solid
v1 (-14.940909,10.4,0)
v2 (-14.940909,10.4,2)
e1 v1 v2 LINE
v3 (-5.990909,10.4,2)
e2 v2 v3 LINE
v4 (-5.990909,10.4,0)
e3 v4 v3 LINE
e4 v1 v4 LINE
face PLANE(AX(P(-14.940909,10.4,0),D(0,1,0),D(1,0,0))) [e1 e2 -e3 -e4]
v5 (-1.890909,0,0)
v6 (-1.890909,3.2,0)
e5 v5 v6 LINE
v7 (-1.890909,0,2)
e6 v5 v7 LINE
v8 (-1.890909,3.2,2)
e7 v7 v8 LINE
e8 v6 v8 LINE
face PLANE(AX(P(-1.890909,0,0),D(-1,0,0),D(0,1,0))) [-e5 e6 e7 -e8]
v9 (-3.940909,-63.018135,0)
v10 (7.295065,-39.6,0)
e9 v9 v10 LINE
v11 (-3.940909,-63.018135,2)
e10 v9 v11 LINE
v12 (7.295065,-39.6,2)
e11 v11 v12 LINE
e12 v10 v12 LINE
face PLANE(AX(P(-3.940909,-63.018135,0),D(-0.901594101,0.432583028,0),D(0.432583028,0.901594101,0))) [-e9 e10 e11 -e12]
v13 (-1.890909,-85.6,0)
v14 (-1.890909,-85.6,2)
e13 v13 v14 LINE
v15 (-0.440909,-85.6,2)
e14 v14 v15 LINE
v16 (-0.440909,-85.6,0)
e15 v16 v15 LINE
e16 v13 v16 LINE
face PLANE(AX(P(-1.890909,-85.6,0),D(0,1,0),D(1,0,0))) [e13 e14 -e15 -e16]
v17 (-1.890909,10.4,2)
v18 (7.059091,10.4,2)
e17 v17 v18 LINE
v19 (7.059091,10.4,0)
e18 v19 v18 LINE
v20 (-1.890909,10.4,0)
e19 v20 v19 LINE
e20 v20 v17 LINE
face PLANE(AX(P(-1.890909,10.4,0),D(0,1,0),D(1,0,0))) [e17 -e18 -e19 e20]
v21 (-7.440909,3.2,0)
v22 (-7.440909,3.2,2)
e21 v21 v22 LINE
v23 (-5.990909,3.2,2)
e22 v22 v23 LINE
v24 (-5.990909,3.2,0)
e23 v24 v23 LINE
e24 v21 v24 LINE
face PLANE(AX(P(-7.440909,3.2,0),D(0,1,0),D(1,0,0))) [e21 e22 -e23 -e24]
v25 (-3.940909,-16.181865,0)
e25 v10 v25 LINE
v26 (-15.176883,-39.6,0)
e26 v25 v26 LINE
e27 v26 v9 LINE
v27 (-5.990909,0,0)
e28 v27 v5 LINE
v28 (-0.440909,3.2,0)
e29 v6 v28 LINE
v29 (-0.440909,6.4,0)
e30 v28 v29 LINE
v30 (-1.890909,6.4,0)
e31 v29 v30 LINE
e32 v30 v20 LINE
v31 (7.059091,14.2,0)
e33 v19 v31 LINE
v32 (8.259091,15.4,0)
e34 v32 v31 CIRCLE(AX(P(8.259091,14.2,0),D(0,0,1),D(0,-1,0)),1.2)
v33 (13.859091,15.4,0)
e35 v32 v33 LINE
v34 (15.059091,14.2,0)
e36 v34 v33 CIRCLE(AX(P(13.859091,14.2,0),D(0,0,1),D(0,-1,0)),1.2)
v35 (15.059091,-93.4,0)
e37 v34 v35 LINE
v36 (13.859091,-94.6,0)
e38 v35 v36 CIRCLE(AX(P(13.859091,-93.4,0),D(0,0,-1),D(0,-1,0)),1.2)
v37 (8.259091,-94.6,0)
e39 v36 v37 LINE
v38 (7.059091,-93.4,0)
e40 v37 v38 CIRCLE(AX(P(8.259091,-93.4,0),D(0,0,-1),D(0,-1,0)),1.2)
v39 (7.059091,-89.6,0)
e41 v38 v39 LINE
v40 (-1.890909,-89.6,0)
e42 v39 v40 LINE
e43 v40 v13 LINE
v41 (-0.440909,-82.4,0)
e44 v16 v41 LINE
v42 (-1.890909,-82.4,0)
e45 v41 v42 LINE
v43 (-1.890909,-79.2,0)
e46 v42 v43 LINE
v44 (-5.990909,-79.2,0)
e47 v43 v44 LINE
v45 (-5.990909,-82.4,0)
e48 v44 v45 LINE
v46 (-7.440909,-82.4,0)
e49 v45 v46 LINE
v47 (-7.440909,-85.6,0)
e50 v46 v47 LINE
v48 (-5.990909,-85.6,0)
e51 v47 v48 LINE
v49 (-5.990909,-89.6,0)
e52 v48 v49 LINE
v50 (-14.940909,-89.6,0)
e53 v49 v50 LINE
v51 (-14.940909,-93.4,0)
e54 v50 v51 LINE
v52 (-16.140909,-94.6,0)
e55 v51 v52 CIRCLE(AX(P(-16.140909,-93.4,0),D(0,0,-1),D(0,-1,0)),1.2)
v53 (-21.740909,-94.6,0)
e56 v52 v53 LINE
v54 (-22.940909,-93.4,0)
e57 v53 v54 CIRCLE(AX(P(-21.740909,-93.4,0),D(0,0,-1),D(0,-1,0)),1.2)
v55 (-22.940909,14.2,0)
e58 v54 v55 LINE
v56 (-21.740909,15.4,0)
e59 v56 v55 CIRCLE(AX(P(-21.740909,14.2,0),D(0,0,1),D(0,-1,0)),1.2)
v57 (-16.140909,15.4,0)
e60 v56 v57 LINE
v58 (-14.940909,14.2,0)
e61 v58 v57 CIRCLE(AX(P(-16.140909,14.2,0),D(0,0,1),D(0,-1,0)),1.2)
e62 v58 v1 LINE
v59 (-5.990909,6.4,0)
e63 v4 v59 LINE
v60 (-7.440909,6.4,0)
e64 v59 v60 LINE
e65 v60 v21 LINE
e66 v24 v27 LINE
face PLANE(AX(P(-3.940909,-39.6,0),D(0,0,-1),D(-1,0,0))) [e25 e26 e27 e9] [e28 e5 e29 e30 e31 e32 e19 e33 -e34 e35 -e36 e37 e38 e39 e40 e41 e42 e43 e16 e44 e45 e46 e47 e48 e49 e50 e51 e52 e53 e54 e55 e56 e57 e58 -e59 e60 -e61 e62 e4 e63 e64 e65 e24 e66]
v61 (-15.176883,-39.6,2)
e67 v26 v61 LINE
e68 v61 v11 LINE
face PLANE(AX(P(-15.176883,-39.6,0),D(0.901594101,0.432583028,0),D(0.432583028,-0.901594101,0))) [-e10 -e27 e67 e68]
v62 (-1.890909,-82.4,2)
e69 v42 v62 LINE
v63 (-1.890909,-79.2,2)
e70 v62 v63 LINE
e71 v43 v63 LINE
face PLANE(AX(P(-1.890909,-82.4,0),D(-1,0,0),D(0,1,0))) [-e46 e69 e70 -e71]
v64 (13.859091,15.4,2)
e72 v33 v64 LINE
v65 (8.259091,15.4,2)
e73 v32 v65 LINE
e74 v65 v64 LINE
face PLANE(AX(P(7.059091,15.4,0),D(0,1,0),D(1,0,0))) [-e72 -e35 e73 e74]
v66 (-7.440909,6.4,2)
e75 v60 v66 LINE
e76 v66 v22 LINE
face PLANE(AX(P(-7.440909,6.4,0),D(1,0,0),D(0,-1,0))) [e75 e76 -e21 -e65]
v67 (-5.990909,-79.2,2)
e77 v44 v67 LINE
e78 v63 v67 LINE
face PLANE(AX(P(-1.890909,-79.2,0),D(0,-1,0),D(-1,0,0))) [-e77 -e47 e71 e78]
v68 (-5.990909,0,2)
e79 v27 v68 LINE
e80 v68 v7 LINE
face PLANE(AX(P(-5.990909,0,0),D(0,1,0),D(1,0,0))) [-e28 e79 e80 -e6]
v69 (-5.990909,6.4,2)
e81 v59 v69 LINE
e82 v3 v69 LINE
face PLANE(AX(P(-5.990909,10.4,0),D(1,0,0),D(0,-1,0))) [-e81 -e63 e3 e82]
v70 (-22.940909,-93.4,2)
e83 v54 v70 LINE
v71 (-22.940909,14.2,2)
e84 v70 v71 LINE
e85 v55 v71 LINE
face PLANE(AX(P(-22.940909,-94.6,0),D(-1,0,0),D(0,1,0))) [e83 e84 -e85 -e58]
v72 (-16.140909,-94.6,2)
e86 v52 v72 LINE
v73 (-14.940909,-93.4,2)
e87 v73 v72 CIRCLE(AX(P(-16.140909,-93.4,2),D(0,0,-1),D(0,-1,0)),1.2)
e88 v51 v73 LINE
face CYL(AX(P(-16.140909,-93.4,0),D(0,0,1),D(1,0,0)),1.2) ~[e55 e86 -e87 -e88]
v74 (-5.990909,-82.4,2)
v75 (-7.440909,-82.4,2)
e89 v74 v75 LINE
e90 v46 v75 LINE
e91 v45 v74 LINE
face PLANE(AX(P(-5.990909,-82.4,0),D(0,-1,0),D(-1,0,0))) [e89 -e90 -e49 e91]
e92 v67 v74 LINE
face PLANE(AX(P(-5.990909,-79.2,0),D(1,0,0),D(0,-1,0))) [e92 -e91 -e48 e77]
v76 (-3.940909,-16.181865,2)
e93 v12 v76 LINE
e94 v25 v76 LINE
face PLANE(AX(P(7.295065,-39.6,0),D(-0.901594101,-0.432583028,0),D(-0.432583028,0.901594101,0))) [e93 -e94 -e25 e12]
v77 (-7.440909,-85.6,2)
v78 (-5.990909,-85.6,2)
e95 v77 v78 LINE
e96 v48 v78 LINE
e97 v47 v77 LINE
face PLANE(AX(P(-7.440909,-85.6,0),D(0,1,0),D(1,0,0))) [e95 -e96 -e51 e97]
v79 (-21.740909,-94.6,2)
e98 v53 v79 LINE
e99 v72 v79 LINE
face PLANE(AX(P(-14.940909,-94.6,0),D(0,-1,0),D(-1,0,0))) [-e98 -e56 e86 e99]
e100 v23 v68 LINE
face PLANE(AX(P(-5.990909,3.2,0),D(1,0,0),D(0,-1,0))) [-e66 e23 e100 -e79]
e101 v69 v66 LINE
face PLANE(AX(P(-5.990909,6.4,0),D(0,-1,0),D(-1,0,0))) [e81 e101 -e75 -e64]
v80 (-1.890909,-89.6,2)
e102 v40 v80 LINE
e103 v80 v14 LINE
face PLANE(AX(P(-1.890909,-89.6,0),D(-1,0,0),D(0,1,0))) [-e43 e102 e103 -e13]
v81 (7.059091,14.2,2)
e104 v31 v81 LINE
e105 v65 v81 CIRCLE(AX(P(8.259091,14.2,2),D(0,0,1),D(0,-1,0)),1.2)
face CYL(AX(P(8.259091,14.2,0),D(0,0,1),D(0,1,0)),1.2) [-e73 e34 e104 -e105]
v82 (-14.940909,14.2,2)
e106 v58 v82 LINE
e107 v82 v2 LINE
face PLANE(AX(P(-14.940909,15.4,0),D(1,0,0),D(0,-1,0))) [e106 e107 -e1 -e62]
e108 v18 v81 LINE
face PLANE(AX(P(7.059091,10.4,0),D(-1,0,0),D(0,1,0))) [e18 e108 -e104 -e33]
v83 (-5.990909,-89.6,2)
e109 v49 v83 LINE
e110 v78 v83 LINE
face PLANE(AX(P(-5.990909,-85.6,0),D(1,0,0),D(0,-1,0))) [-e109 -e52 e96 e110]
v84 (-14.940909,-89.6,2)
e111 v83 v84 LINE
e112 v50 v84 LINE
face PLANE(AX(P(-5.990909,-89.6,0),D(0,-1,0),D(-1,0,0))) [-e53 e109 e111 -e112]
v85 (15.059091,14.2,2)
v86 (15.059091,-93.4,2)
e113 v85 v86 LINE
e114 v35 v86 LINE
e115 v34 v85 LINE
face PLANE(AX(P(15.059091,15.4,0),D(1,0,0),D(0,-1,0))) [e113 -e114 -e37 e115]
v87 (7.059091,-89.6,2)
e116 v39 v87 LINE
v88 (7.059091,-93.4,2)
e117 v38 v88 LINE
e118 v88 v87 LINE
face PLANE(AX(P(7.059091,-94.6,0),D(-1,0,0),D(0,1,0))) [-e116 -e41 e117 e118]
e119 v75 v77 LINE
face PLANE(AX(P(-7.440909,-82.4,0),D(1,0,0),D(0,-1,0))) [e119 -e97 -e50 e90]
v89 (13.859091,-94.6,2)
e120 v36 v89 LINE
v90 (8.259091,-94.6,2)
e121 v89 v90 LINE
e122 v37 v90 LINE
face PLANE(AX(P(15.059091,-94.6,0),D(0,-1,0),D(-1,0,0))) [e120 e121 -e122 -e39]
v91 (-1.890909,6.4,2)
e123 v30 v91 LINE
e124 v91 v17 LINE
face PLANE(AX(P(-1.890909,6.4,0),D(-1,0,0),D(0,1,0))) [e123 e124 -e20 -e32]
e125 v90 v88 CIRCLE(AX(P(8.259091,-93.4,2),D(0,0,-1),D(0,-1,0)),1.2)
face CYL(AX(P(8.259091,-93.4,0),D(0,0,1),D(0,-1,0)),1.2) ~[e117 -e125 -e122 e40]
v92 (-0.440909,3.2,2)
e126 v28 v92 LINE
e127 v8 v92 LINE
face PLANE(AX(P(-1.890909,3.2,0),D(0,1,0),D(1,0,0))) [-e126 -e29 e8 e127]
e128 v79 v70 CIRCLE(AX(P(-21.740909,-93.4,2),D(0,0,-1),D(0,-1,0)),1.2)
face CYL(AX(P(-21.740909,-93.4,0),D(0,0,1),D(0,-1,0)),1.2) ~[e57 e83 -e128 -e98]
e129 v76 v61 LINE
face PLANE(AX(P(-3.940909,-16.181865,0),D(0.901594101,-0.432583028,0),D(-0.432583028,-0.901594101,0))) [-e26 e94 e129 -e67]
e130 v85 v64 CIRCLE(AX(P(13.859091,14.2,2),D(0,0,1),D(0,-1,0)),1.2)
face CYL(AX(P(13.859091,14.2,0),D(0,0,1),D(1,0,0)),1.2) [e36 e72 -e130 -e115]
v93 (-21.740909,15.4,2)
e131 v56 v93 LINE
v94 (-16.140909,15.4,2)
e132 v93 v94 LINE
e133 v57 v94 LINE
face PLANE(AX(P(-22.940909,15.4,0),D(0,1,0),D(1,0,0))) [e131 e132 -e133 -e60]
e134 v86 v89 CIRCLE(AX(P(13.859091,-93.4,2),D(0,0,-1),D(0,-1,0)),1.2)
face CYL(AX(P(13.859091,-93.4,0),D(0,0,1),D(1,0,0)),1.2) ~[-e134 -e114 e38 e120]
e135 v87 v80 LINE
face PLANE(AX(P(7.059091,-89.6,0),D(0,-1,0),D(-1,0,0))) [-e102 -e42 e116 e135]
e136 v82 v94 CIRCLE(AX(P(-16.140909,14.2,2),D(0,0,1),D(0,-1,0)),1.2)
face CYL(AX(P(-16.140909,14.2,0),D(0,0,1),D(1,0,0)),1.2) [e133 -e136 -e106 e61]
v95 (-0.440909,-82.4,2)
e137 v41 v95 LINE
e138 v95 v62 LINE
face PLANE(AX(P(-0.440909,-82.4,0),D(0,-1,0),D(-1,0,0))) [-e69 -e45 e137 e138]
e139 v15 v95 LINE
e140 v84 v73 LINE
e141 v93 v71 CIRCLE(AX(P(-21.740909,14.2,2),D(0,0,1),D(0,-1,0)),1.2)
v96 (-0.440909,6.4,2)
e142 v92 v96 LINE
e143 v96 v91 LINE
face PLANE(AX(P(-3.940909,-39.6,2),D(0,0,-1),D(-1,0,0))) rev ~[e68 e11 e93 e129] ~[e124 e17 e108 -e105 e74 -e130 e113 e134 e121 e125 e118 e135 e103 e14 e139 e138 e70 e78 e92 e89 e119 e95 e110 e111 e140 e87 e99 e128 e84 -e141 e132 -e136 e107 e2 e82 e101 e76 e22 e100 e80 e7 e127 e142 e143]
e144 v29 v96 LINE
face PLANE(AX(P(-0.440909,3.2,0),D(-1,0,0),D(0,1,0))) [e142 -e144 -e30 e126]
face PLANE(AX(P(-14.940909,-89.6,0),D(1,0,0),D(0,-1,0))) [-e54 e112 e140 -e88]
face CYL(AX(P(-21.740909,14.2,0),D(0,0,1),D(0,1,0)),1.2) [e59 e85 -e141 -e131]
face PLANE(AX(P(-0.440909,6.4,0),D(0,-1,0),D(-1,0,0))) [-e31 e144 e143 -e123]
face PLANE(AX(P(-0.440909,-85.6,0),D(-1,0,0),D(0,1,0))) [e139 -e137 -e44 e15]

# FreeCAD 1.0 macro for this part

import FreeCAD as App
import Part
import Sketcher

V = App.Vector
Q = App.Units.Quantity


def edges_at(feature, points):
    """Names of the edges that pass closest to the given points."""
    edges = feature.Shape.Edges
    near = lambda p: min(range(len(edges)), key=lambda i: edges[i].distToShape(Part.Vertex(*p))[0])
    return sorted({f"Edge{near(p) + 1}" for p in points})

doc = App.newDocument("Part")
body = doc.addObject("PartDesign::Body", "Body")

sketch1 = body.newObject("Sketcher::SketchObject", "Sketch")
sketch1.AttachmentSupport = (doc.getObject("XY_Plane"), [""])
sketch1.MapMode = "FlatFace"
sketch1.addGeometry([
    Part.LineSegment(V(15.1, -94.6, 0), V(15.1, 15.4, 0)),
    Part.LineSegment(V(15.1, 15.4, 0), V(7.1, 15.4, 0)),
    Part.LineSegment(V(7.1, 15.4, 0), V(7.1, 10.4, 0)),
    Part.LineSegment(V(7.1, 10.4, 0), V(-1.9, 10.4, 0)),
    Part.LineSegment(V(-1.9, 10.4, 0), V(-1.9, 6.4, 0)),
    Part.LineSegment(V(-1.9, 6.4, 0), V(-0.4, 6.4, 0)),
    Part.LineSegment(V(-0.4, 6.4, 0), V(-0.4, 3.2, 0)),
    Part.LineSegment(V(-0.4, 3.2, 0), V(-1.9, 3.2, 0)),
    Part.LineSegment(V(-1.9, 3.2, 0), V(-1.9, 0, 0)),
    Part.LineSegment(V(-1.9, 0, 0), V(-6, 0, 0)),
    Part.LineSegment(V(-6, 0, 0), V(-6, 3.2, 0)),
    Part.LineSegment(V(-6, 3.2, 0), V(-7.4, 3.2, 0)),
    Part.LineSegment(V(-7.4, 3.2, 0), V(-7.4, 6.4, 0)),
    Part.LineSegment(V(-7.4, 6.4, 0), V(-6, 6.4, 0)),
    Part.LineSegment(V(-6, 6.4, 0), V(-6, 10.4, 0)),
    Part.LineSegment(V(-6, 10.4, 0), V(-14.9, 10.4, 0)),
    Part.LineSegment(V(-14.9, 10.4, 0), V(-14.9, 15.4, 0)),
    Part.LineSegment(V(-14.9, 15.4, 0), V(-22.9, 15.4, 0)),
    Part.LineSegment(V(-22.9, 15.4, 0), V(-22.9, -94.6, 0)),
    Part.LineSegment(V(-22.9, -94.6, 0), V(-14.9, -94.6, 0)),
    Part.LineSegment(V(-14.9, -94.6, 0), V(-14.9, -89.6, 0)),
    Part.LineSegment(V(-14.9, -89.6, 0), V(-6, -89.6, 0)),
    Part.LineSegment(V(-6, -89.6, 0), V(-6, -85.6, 0)),
    Part.LineSegment(V(-6, -85.6, 0), V(-7.4, -85.6, 0)),
    Part.LineSegment(V(-7.4, -85.6, 0), V(-7.4, -82.4, 0)),
    Part.LineSegment(V(-7.4, -82.4, 0), V(-6, -82.4, 0)),
    Part.LineSegment(V(-6, -82.4, 0), V(-6, -79.2, 0)),
    Part.LineSegment(V(-6, -79.2, 0), V(-1.9, -79.2, 0)),
    Part.LineSegment(V(-1.9, -79.2, 0), V(-1.9, -82.4, 0)),
    Part.LineSegment(V(-1.9, -82.4, 0), V(-0.4, -82.4, 0)),
    Part.LineSegment(V(-0.4, -82.4, 0), V(-0.4, -85.6, 0)),
    Part.LineSegment(V(-0.4, -85.6, 0), V(-1.9, -85.6, 0)),
    Part.LineSegment(V(-1.9, -85.6, 0), V(-1.9, -89.6, 0)),
    Part.LineSegment(V(-1.9, -89.6, 0), V(7.1, -89.6, 0)),
    Part.LineSegment(V(7.1, -89.6, 0), V(7.1, -94.6, 0)),
    Part.LineSegment(V(7.1, -94.6, 0), V(15.1, -94.6, 0)),
    Part.LineSegment(V(-3.9, -16.2, 0), V(7.3, -39.6, 0)),
    Part.LineSegment(V(7.3, -39.6, 0), V(-3.9, -63, 0)),
    Part.LineSegment(V(-3.9, -63, 0), V(-15.2, -39.6, 0)),
    Part.LineSegment(V(-15.2, -39.6, 0), V(-3.9, -16.2, 0)),
], False)
sketch1.addConstraint([
    Sketcher.Constraint("Coincident", 0, 2, 1, 1),
    Sketcher.Constraint("Coincident", 1, 2, 2, 1),
    Sketcher.Constraint("Coincident", 2, 2, 3, 1),
    Sketcher.Constraint("Coincident", 3, 2, 4, 1),
    Sketcher.Constraint("Coincident", 4, 2, 5, 1),
    Sketcher.Constraint("Coincident", 5, 2, 6, 1),
    Sketcher.Constraint("Coincident", 6, 2, 7, 1),
    Sketcher.Constraint("Coincident", 7, 2, 8, 1),
    Sketcher.Constraint("Coincident", 8, 2, 9, 1),
    Sketcher.Constraint("Coincident", 9, 2, 10, 1),
    Sketcher.Constraint("Coincident", 10, 2, 11, 1),
    Sketcher.Constraint("Coincident", 11, 2, 12, 1),
    Sketcher.Constraint("Coincident", 12, 2, 13, 1),
    Sketcher.Constraint("Coincident", 13, 2, 14, 1),
    Sketcher.Constraint("Coincident", 14, 2, 15, 1),
    Sketcher.Constraint("Coincident", 15, 2, 16, 1),
    Sketcher.Constraint("Coincident", 16, 2, 17, 1),
    Sketcher.Constraint("Coincident", 17, 2, 18, 1),
    Sketcher.Constraint("Coincident", 18, 2, 19, 1),
    Sketcher.Constraint("Coincident", 19, 2, 20, 1),
    Sketcher.Constraint("Coincident", 20, 2, 21, 1),
    Sketcher.Constraint("Coincident", 21, 2, 22, 1),
    Sketcher.Constraint("Coincident", 22, 2, 23, 1),
    Sketcher.Constraint("Coincident", 23, 2, 24, 1),
    Sketcher.Constraint("Coincident", 24, 2, 25, 1),
    Sketcher.Constraint("Coincident", 25, 2, 26, 1),
    Sketcher.Constraint("Coincident", 26, 2, 27, 1),
    Sketcher.Constraint("Coincident", 27, 2, 28, 1),
    Sketcher.Constraint("Coincident", 28, 2, 29, 1),
    Sketcher.Constraint("Coincident", 29, 2, 30, 1),
    Sketcher.Constraint("Coincident", 30, 2, 31, 1),
    Sketcher.Constraint("Coincident", 31, 2, 32, 1),
    Sketcher.Constraint("Coincident", 32, 2, 33, 1),
    Sketcher.Constraint("Coincident", 33, 2, 34, 1),
    Sketcher.Constraint("Coincident", 34, 2, 35, 1),
    Sketcher.Constraint("Coincident", 35, 2, 0, 1),
    Sketcher.Constraint("Coincident", 36, 2, 37, 1),
    Sketcher.Constraint("Coincident", 37, 2, 38, 1),
    Sketcher.Constraint("Coincident", 38, 2, 39, 1),
    Sketcher.Constraint("Coincident", 39, 2, 36, 1),
    Sketcher.Constraint("Vertical", 0),
    Sketcher.Constraint("Horizontal", 1),
    Sketcher.Constraint("Vertical", 2),
    Sketcher.Constraint("Horizontal", 3),
    Sketcher.Constraint("Vertical", 4),
    Sketcher.Constraint("Horizontal", 5),
    Sketcher.Constraint("Vertical", 6),
    Sketcher.Constraint("Horizontal", 7),
    Sketcher.Constraint("Vertical", 8),
    Sketcher.Constraint("Horizontal", 9),
    Sketcher.Constraint("Vertical", 10),
    Sketcher.Constraint("Horizontal", 11),
    Sketcher.Constraint("Vertical", 12),
    Sketcher.Constraint("Horizontal", 13),
    Sketcher.Constraint("Vertical", 14),
    Sketcher.Constraint("Horizontal", 15),
    Sketcher.Constraint("Vertical", 16),
    Sketcher.Constraint("Horizontal", 17),
    Sketcher.Constraint("Vertical", 18),
    Sketcher.Constraint("Horizontal", 19),
    Sketcher.Constraint("Vertical", 20),
    Sketcher.Constraint("Horizontal", 21),
    Sketcher.Constraint("Vertical", 22),
    Sketcher.Constraint("Horizontal", 23),
    Sketcher.Constraint("Vertical", 24),
    Sketcher.Constraint("Horizontal", 25),
    Sketcher.Constraint("Vertical", 26),
    Sketcher.Constraint("Horizontal", 27),
    Sketcher.Constraint("Vertical", 28),
    Sketcher.Constraint("Horizontal", 29),
    Sketcher.Constraint("Vertical", 30),
    Sketcher.Constraint("Horizontal", 31),
    Sketcher.Constraint("Vertical", 32),
    Sketcher.Constraint("Horizontal", 33),
    Sketcher.Constraint("Vertical", 34),
    Sketcher.Constraint("Horizontal", 35),
    Sketcher.Constraint("PointOnObject", 8, 2, -1),
    Sketcher.Constraint("Parallel", 36, 38),
    Sketcher.Constraint("Parallel", 37, 39),
    Sketcher.Constraint("Horizontal", 7, 2, 10, 2),
    Sketcher.Constraint("Horizontal", 5, 2, 12, 2),
    Sketcher.Constraint("Horizontal", 3, 2, 14, 2),
    Sketcher.Constraint("Horizontal", 1, 2, 16, 2),
    Sketcher.Constraint("Horizontal", 25, 2, 28, 2),
    Sketcher.Constraint("Horizontal", 23, 2, 30, 2),
    Sketcher.Constraint("Horizontal", 21, 2, 32, 2),
    Sketcher.Constraint("Horizontal", 19, 2, 34, 2),
    Sketcher.Constraint("Horizontal", 36, 2, 38, 2),
    Sketcher.Constraint("Vertical", 4, 2, 7, 2),
    Sketcher.Constraint("Vertical", 10, 2, 13, 2),
    Sketcher.Constraint("Vertical", 16, 2, 19, 2),
    Sketcher.Constraint("Vertical", 14, 2, 21, 2),
    Sketcher.Constraint("Vertical", 12, 2, 23, 2),
    Sketcher.Constraint("Vertical", 22, 2, 25, 2),
    Sketcher.Constraint("Vertical", 8, 2, 27, 2),
    Sketcher.Constraint("Vertical", 6, 2, 29, 2),
    Sketcher.Constraint("Vertical", 28, 2, 31, 2),
    Sketcher.Constraint("Vertical", 2, 2, 33, 2),
    Sketcher.Constraint("Vertical", 37, 2, 39, 2),
    Sketcher.Constraint("Equal", 7, 11),
    Sketcher.Constraint("Equal", 3, 15),
    Sketcher.Constraint("Equal", 1, 17),
    Sketcher.Constraint("Equal", 6, 8),
    Sketcher.Constraint("Equal", 16, 20),
    Sketcher.Constraint("Equal", 14, 22),
    Sketcher.Constraint("Equal", 12, 24),
    Sketcher.Constraint("Equal", 24, 26),
    Sketcher.Constraint("DistanceX", 1, 2, 1, 1, Q("8 mm")),
    Sketcher.Constraint("DistanceY", 0, 1, 0, 2, Q("110 mm")),
    Sketcher.Constraint("DistanceY", 2, 2, 2, 1, Q("5 mm")),
    Sketcher.Constraint("DistanceY", 4, 2, 4, 1, Q("4 mm")),
    Sketcher.Constraint("DistanceX", 9, 2, 9, 1, Q("4.1 mm")),
    Sketcher.Constraint("DistanceY", 6, 2, 6, 1, Q("3.2 mm")),
    Sketcher.Constraint("DistanceX", 3, 2, 3, 1, Q("8.95 mm")),
    Sketcher.Constraint("DistanceX", 5, 1, 5, 2, Q("1.45 mm")),
    Sketcher.Constraint("DistanceY", 36, 2, -1, 1, Q("39.6 mm")),
    Sketcher.Constraint("DistanceX", 24, 2, 37, 2, Q("3.5 mm")),
    Sketcher.Constraint("DistanceX", -1, 1, 0, 2, Q("15.059091 mm")),
    Sketcher.Constraint("DistanceX", 38, 2, 36, 2, Q("22.471948 mm")),
    Sketcher.Constraint("Distance", 36, Q("25.974144 mm")),
])
pad1 = body.newObject("PartDesign::Pad", "Pad")
pad1.Profile = sketch1
pad1.Length = 2
doc.recompute()

fillet = body.newObject("PartDesign::Fillet", "Fillet")
fillet.Base = (pad1, edges_at(pad1, [
    (7.059, 15.4, 1),
    (15.059, 15.4, 1),
    (15.059, -94.6, 1),
    (7.059, -94.6, 1),
    (-14.941, -94.6, 1),
    (-22.941, -94.6, 1),
    (-22.941, 15.4, 1),
    (-14.941, 15.4, 1),
]))
fillet.Radius = 1.2

doc.recompute()
